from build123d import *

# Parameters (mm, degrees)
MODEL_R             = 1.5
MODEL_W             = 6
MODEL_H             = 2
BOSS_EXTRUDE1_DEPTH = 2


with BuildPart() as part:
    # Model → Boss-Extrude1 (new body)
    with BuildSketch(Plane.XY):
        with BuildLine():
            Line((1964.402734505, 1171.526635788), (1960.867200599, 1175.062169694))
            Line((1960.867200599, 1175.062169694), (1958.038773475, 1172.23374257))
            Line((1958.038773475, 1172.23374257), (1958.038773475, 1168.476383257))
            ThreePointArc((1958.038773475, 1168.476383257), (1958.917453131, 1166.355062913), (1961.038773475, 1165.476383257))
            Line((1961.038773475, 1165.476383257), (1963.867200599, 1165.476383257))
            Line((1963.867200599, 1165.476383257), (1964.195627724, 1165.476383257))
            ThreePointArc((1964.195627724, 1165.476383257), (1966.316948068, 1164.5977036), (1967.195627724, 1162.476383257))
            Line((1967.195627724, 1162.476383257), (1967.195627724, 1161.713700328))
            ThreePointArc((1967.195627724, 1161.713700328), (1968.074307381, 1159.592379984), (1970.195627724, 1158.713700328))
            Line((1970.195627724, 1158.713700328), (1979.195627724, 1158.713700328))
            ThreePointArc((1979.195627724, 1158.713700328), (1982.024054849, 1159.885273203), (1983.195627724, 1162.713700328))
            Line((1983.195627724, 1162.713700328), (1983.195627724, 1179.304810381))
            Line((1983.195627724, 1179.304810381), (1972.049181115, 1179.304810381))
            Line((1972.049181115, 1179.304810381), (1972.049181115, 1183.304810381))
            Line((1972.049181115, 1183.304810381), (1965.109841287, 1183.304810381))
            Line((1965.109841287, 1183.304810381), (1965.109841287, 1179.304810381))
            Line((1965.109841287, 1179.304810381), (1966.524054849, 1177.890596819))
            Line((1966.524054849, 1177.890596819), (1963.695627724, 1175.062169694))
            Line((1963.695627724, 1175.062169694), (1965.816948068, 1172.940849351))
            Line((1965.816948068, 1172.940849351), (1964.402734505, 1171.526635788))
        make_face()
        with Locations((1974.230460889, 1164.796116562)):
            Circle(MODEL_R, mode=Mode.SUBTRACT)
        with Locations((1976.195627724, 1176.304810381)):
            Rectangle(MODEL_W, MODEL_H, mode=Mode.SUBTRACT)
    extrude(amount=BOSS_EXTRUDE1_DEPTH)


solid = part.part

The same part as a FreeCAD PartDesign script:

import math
import FreeCAD as App
import Part
import Sketcher

V = App.Vector
Q = App.Units.Quantity

doc = App.newDocument("Part")
params = doc.addObject("Spreadsheet::Sheet", "Params")
for row, (alias, value) in enumerate([
    ("sketch1_diameter", "3 mm"),
    ("sketch1_radius", "3 mm"),
    ("sketch1_radius2", "4 mm"),
    ("sketch1_width", "9 mm"),
    ("sketch1_width2", "6 mm"),
    ("pad1_length", "2 mm"),
], start=1):
    params.set(f"A{row}", alias)
    params.set(f"B{row}", "=" + value)
    params.setAlias(f"B{row}", alias)

body = doc.addObject("PartDesign::Body", "Body")

sketch1 = body.newObject("Sketcher::SketchObject", "Sketch")
sketch1.AttachmentSupport = (doc.getObject("XY_Plane"), [""])
sketch1.MapMode = "FlatFace"
sketch1.addGeometry([
    Part.LineSegment(V(1964.402735, 1171.526636, 0), V(1960.867201, 1175.06217, 0)),
    Part.LineSegment(V(1960.867201, 1175.06217, 0), V(1958.038773, 1172.233743, 0)),
    Part.LineSegment(V(1958.038773, 1172.233743, 0), V(1958.038773, 1168.476383, 0)),
    Part.ArcOfCircle(Part.Circle(V(1961.038773, 1168.476383, 0), V(0, 0, 1), 3), math.radians(180), math.radians(270)),
    Part.LineSegment(V(1961.038773, 1165.476383, 0), V(1964.195628, 1165.476383, 0)),
    Part.ArcOfCircle(Part.Circle(V(1964.195628, 1162.476383, 0), V(0, 0, 1), 3), math.radians(0), math.radians(90)),
    Part.LineSegment(V(1967.195628, 1162.476383, 0), V(1967.195628, 1161.7137, 0)),
    Part.ArcOfCircle(Part.Circle(V(1970.195628, 1161.7137, 0), V(0, 0, 1), 3), math.radians(180), math.radians(270)),
    Part.LineSegment(V(1970.195628, 1158.7137, 0), V(1979.195628, 1158.7137, 0)),
    Part.ArcOfCircle(Part.Circle(V(1979.195628, 1162.7137, 0), V(0, 0, 1), 4), math.radians(-90), math.radians(0)),
    Part.LineSegment(V(1983.195628, 1162.7137, 0), V(1983.195628, 1179.30481, 0)),
    Part.LineSegment(V(1983.195628, 1179.30481, 0), V(1972.049181, 1179.30481, 0)),
    Part.LineSegment(V(1972.049181, 1179.30481, 0), V(1972.049181, 1183.30481, 0)),
    Part.LineSegment(V(1972.049181, 1183.30481, 0), V(1965.109841, 1183.30481, 0)),
    Part.LineSegment(V(1965.109841, 1183.30481, 0), V(1965.109841, 1179.30481, 0)),
    Part.LineSegment(V(1965.109841, 1179.30481, 0), V(1966.524055, 1177.890597, 0)),
    Part.LineSegment(V(1966.524055, 1177.890597, 0), V(1963.695628, 1175.06217, 0)),
    Part.LineSegment(V(1963.695628, 1175.06217, 0), V(1965.816948, 1172.940849, 0)),
    Part.LineSegment(V(1965.816948, 1172.940849, 0), V(1964.402735, 1171.526636, 0)),
    Part.Circle(V(1974.230461, 1164.796117, 0), V(0, 0, 1), 1.5),
    Part.LineSegment(V(1979.195628, 1175.30481, 0), V(1973.195628, 1175.30481, 0)),
    Part.LineSegment(V(1973.195628, 1175.30481, 0), V(1973.195628, 1177.30481, 0)),
    Part.LineSegment(V(1973.195628, 1177.30481, 0), V(1979.195628, 1177.30481, 0)),
    Part.LineSegment(V(1979.195628, 1177.30481, 0), V(1979.195628, 1175.30481, 0)),
], False)
sketch1.addConstraint([
    Sketcher.Constraint("Coincident", 0, 2, 1, 1),
    Sketcher.Constraint("Coincident", 1, 2, 2, 1),
    Sketcher.Constraint("Tangent", 2, 2, 3, 1),
    Sketcher.Constraint("Tangent", 3, 2, 4, 1),
    Sketcher.Constraint("Tangent", 4, 2, 5, 2),
    Sketcher.Constraint("Tangent", 5, 1, 6, 1),
    Sketcher.Constraint("Tangent", 6, 2, 7, 1),
    Sketcher.Constraint("Tangent", 7, 2, 8, 1),
    Sketcher.Constraint("Tangent", 8, 2, 9, 1),
    Sketcher.Constraint("Tangent", 9, 2, 10, 1),
    Sketcher.Constraint("Coincident", 10, 2, 11, 1),
    Sketcher.Constraint("Coincident", 11, 2, 12, 1),
    Sketcher.Constraint("Coincident", 12, 2, 13, 1),
    Sketcher.Constraint("Coincident", 13, 2, 14, 1),
    Sketcher.Constraint("Coincident", 14, 2, 15, 1),
    Sketcher.Constraint("Coincident", 15, 2, 16, 1),
    Sketcher.Constraint("Coincident", 16, 2, 17, 1),
    Sketcher.Constraint("Coincident", 17, 2, 18, 1),
    Sketcher.Constraint("Coincident", 18, 2, 0, 1),
    Sketcher.Constraint("Coincident", 20, 2, 21, 1),
    Sketcher.Constraint("Coincident", 21, 2, 22, 1),
    Sketcher.Constraint("Coincident", 22, 2, 23, 1),
    Sketcher.Constraint("Coincident", 23, 2, 20, 1),
    Sketcher.Constraint("Vertical", 2),
    Sketcher.Constraint("Horizontal", 4),
    Sketcher.Constraint("Vertical", 6),
    Sketcher.Constraint("Horizontal", 8),
    Sketcher.Constraint("Vertical", 10),
    Sketcher.Constraint("Horizontal", 11),
    Sketcher.Constraint("Vertical", 12),
    Sketcher.Constraint("Horizontal", 13),
    Sketcher.Constraint("Vertical", 14),
    Sketcher.Constraint("Horizontal", 20),
    Sketcher.Constraint("Vertical", 21),
    Sketcher.Constraint("Horizontal", 22),
    Sketcher.Constraint("Vertical", 23),
    Sketcher.Constraint("Equal", 3, 5),
    Sketcher.Constraint("Equal", 5, 7),
    Sketcher.Constraint("Perpendicular", 0, 1),
    Sketcher.Constraint("Perpendicular", 1, 15),
    Sketcher.Constraint("Perpendicular", 15, 16),
    Sketcher.Constraint("Perpendicular", 16, 17),
    Sketcher.Constraint("Perpendicular", 17, 18),
    Sketcher.Constraint("Horizontal", 11, 2, 14, 2),
    Sketcher.Constraint("Horizontal", 0, 2, 16, 2),
    Sketcher.Constraint("Vertical", 8, 2, 22, 2),
    Sketcher.Constraint("Equal", 1, 16),
    Sketcher.Constraint("Equal", 15, 18),
    Sketcher.Constraint("Diameter", 19, 3.0),
    Sketcher.Constraint("Radius", 3, 3.0),
    Sketcher.Constraint("Radius", 9, 4.0),
    Sketcher.Constraint("DistanceX", 8, 1, 8, 2, 9.0),
    Sketcher.Constraint("DistanceX", 20, 2, 20, 1, 6.0),
    Sketcher.Constraint("DistanceY", 12, 1, 12, 2, 4.0),
    Sketcher.Constraint("DistanceY", 21, 1, 21, 2, 2.0),
    Sketcher.Constraint("Angle", 0, Q("135 deg")),
    Sketcher.Constraint("Distance", 0, 5.0),
    Sketcher.Constraint("Distance", 1, 4.0),
    Sketcher.Constraint("Distance", 15, 2.0),
    Sketcher.Constraint("DistanceY", 20, 2, 11, 2, 4.0),
    Sketcher.Constraint("DistanceX", 13, 2, 13, 1, 6.93934),
    Sketcher.Constraint("DistanceY", 2, 2, 2, 1, 3.757359),
    Sketcher.Constraint("DistanceY", 10, 1, 10, 2, 16.59111),
    Sketcher.Constraint("DistanceY", -1, 1, 7, 3, 1161.7137),
    Sketcher.Constraint("DistanceX", -1, 1, 0, 2, 1960.867201),
    Sketcher.Constraint("DistanceX", 4, 1, 4, 2, 3.156854),
    Sketcher.Constraint("DistanceX", -1, 1, 19, 3, 1974.230461),
    Sketcher.Constraint("DistanceY", -1, 1, 19, 3, 1164.796117),
])
sketch1.setExpression("Constraints[48]", "Params.sketch1_diameter")
sketch1.setExpression("Constraints[49]", "Params.sketch1_radius")
sketch1.setExpression("Constraints[50]", "Params.sketch1_radius2")
sketch1.setExpression("Constraints[51]", "Params.sketch1_width")
sketch1.setExpression("Constraints[52]", "Params.sketch1_width2")
pad1 = body.newObject("PartDesign::Pad", "Pad")
pad1.Profile = sketch1
pad1.setExpression("Length", "Params.pad1_length")

doc.recompute()
